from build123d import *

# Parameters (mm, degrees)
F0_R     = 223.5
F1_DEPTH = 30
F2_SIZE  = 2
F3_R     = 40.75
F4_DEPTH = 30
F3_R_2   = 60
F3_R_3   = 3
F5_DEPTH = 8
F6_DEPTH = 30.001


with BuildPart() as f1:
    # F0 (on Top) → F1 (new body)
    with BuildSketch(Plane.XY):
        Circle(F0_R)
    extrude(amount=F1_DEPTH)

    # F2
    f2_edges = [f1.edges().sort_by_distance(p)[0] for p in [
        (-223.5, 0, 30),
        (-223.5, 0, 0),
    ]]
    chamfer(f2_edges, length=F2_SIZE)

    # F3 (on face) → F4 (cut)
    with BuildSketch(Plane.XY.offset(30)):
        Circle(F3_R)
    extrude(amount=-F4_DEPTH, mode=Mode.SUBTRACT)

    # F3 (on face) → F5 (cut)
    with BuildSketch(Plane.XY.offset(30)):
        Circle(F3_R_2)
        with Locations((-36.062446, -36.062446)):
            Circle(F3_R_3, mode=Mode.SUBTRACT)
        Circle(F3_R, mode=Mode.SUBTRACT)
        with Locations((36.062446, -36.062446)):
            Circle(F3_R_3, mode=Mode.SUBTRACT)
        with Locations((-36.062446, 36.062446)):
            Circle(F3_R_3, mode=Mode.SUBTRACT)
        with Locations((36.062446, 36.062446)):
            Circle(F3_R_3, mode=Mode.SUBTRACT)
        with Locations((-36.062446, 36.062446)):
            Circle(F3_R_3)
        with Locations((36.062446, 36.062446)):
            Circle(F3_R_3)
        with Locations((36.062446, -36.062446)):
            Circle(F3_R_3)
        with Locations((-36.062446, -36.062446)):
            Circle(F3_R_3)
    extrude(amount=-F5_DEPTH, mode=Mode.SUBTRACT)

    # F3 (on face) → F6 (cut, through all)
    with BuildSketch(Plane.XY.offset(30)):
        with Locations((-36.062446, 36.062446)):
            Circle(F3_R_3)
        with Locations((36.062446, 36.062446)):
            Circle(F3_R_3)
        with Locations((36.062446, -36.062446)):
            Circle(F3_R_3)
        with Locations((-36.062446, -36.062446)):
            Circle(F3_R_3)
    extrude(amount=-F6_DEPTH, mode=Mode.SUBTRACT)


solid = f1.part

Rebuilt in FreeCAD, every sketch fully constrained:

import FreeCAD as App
import Part
import Sketcher
from FreeCAD import Vector
Q = App.Units.Quantity


def edges_at(feature, points):
    """Names of the edges that pass closest to the given points."""
    edges = feature.Shape.Edges
    near = lambda p: min(range(len(edges)), key=lambda i: edges[i].distToShape(Part.Vertex(*p))[0])
    return sorted({f"Edge{near(p) + 1}" for p in points})

doc = App.newDocument("Part")
body = doc.addObject("PartDesign::Body", "Body")

# Sketch on XY plane
sketch1 = body.newObject("Sketcher::SketchObject", "Sketch")
sketch1.AttachmentSupport = (doc.getObject("XY_Plane"), [""])
sketch1.MapMode = "FlatFace"
sketch1.addGeometry(Part.Circle(Vector(0, 0, 0), Vector(0, 0, 1), 223.5), False)
sketch1.addConstraint(Sketcher.Constraint("Coincident", 0, 3, -1, 1))
sketch1.addConstraint(Sketcher.Constraint("Diameter", 0, Q("447 mm")))
pad1 = body.newObject("PartDesign::Pad", "Pad")
pad1.Profile = sketch1
pad1.Length = 30
doc.recompute()

chamfer = body.newObject("PartDesign::Chamfer", "Chamfer")
chamfer.Base = (pad1, edges_at(pad1, [(-223.5, 0, 30), (-223.5, 0, 0)]))
chamfer.Size = 2

# Sketch on XY plane
sketch2 = body.newObject("Sketcher::SketchObject", "Sketch001")
sketch2.AttachmentSupport = (doc.getObject("XY_Plane"), [""])
sketch2.MapMode = "FlatFace"
sketch2.AttachmentOffset = App.Placement(Vector(0, 0, 30), App.Rotation())
sketch2.addGeometry(Part.Circle(Vector(0, 0, 0), Vector(0, 0, 1), 40.75), False)
sketch2.addConstraint(Sketcher.Constraint("Coincident", 0, 3, -1, 1))
sketch2.addConstraint(Sketcher.Constraint("Diameter", 0, Q("81.5 mm")))
pocket1 = body.newObject("PartDesign::Pocket", "Pocket")
pocket1.Profile = sketch2
pocket1.Length = 30

# Sketch on XY plane
sketch3 = body.newObject("Sketcher::SketchObject", "Sketch002")
sketch3.AttachmentSupport = (doc.getObject("XY_Plane"), [""])
sketch3.MapMode = "FlatFace"
sketch3.AttachmentOffset = App.Placement(Vector(0, 0, 30), App.Rotation())
sketch3.addGeometry(Part.Circle(Vector(0, 0, 0), Vector(0, 0, 1), 60), False)
sketch3.addGeometry(Part.Circle(Vector(0, 0, 0), Vector(0, 0, 1), 40.75), False)
sketch3.addConstraint(Sketcher.Constraint("Coincident", 0, 3, -1, 1))
sketch3.addConstraint(Sketcher.Constraint("Coincident", 1, 3, -1, 1))
sketch3.addConstraint(Sketcher.Constraint("Diameter", 0, Q("120 mm")))
sketch3.addConstraint(Sketcher.Constraint("Diameter", 1, Q("81.5 mm")))
pocket2 = body.newObject("PartDesign::Pocket", "Pocket001")
pocket2.Profile = sketch3
pocket2.Length = 8

# Sketch on XY plane
sketch4 = body.newObject("Sketcher::SketchObject", "Sketch003")
sketch4.AttachmentSupport = (doc.getObject("XY_Plane"), [""])
sketch4.MapMode = "FlatFace"
sketch4.AttachmentOffset = App.Placement(Vector(0, 0, 30), App.Rotation())
sketch4.addGeometry(Part.Circle(Vector(-36.062446, 36.062446, 0), Vector(0, 0, 1), 3), False)
sketch4.addGeometry(Part.Circle(Vector(36.062446, 36.062446, 0), Vector(0, 0, 1), 3), False)
sketch4.addGeometry(Part.Circle(Vector(36.062446, -36.062446, 0), Vector(0, 0, 1), 3), False)
sketch4.addGeometry(Part.Circle(Vector(-36.062446, -36.062446, 0), Vector(0, 0, 1), 3), False)
sketch4.addConstraint(Sketcher.Constraint("Equal", 0, 1))
sketch4.addConstraint(Sketcher.Constraint("Equal", 1, 2))
sketch4.addConstraint(Sketcher.Constraint("Equal", 2, 3))
sketch4.addConstraint(Sketcher.Constraint("Symmetric", 0, 3, 2, 3, -1, 1))
sketch4.addConstraint(Sketcher.Constraint("Symmetric", 1, 3, 3, 3, -1, 1))
sketch4.addConstraint(Sketcher.Constraint("Symmetric", 0, 3, 1, 3, -2))
sketch4.addConstraint(Sketcher.Constraint("Diameter", 0, Q("6 mm")))
sketch4.addConstraint(Sketcher.Constraint("DistanceX", 0, 3, -1, 1, Q("36.062446 mm")))
sketch4.addConstraint(Sketcher.Constraint("DistanceY", -1, 1, 0, 3, Q("36.062446 mm")))
pocket3 = body.newObject("PartDesign::Pocket", "Pocket002")
pocket3.Profile = sketch4
pocket3.Type = "ThroughAll"

doc.recompute()
